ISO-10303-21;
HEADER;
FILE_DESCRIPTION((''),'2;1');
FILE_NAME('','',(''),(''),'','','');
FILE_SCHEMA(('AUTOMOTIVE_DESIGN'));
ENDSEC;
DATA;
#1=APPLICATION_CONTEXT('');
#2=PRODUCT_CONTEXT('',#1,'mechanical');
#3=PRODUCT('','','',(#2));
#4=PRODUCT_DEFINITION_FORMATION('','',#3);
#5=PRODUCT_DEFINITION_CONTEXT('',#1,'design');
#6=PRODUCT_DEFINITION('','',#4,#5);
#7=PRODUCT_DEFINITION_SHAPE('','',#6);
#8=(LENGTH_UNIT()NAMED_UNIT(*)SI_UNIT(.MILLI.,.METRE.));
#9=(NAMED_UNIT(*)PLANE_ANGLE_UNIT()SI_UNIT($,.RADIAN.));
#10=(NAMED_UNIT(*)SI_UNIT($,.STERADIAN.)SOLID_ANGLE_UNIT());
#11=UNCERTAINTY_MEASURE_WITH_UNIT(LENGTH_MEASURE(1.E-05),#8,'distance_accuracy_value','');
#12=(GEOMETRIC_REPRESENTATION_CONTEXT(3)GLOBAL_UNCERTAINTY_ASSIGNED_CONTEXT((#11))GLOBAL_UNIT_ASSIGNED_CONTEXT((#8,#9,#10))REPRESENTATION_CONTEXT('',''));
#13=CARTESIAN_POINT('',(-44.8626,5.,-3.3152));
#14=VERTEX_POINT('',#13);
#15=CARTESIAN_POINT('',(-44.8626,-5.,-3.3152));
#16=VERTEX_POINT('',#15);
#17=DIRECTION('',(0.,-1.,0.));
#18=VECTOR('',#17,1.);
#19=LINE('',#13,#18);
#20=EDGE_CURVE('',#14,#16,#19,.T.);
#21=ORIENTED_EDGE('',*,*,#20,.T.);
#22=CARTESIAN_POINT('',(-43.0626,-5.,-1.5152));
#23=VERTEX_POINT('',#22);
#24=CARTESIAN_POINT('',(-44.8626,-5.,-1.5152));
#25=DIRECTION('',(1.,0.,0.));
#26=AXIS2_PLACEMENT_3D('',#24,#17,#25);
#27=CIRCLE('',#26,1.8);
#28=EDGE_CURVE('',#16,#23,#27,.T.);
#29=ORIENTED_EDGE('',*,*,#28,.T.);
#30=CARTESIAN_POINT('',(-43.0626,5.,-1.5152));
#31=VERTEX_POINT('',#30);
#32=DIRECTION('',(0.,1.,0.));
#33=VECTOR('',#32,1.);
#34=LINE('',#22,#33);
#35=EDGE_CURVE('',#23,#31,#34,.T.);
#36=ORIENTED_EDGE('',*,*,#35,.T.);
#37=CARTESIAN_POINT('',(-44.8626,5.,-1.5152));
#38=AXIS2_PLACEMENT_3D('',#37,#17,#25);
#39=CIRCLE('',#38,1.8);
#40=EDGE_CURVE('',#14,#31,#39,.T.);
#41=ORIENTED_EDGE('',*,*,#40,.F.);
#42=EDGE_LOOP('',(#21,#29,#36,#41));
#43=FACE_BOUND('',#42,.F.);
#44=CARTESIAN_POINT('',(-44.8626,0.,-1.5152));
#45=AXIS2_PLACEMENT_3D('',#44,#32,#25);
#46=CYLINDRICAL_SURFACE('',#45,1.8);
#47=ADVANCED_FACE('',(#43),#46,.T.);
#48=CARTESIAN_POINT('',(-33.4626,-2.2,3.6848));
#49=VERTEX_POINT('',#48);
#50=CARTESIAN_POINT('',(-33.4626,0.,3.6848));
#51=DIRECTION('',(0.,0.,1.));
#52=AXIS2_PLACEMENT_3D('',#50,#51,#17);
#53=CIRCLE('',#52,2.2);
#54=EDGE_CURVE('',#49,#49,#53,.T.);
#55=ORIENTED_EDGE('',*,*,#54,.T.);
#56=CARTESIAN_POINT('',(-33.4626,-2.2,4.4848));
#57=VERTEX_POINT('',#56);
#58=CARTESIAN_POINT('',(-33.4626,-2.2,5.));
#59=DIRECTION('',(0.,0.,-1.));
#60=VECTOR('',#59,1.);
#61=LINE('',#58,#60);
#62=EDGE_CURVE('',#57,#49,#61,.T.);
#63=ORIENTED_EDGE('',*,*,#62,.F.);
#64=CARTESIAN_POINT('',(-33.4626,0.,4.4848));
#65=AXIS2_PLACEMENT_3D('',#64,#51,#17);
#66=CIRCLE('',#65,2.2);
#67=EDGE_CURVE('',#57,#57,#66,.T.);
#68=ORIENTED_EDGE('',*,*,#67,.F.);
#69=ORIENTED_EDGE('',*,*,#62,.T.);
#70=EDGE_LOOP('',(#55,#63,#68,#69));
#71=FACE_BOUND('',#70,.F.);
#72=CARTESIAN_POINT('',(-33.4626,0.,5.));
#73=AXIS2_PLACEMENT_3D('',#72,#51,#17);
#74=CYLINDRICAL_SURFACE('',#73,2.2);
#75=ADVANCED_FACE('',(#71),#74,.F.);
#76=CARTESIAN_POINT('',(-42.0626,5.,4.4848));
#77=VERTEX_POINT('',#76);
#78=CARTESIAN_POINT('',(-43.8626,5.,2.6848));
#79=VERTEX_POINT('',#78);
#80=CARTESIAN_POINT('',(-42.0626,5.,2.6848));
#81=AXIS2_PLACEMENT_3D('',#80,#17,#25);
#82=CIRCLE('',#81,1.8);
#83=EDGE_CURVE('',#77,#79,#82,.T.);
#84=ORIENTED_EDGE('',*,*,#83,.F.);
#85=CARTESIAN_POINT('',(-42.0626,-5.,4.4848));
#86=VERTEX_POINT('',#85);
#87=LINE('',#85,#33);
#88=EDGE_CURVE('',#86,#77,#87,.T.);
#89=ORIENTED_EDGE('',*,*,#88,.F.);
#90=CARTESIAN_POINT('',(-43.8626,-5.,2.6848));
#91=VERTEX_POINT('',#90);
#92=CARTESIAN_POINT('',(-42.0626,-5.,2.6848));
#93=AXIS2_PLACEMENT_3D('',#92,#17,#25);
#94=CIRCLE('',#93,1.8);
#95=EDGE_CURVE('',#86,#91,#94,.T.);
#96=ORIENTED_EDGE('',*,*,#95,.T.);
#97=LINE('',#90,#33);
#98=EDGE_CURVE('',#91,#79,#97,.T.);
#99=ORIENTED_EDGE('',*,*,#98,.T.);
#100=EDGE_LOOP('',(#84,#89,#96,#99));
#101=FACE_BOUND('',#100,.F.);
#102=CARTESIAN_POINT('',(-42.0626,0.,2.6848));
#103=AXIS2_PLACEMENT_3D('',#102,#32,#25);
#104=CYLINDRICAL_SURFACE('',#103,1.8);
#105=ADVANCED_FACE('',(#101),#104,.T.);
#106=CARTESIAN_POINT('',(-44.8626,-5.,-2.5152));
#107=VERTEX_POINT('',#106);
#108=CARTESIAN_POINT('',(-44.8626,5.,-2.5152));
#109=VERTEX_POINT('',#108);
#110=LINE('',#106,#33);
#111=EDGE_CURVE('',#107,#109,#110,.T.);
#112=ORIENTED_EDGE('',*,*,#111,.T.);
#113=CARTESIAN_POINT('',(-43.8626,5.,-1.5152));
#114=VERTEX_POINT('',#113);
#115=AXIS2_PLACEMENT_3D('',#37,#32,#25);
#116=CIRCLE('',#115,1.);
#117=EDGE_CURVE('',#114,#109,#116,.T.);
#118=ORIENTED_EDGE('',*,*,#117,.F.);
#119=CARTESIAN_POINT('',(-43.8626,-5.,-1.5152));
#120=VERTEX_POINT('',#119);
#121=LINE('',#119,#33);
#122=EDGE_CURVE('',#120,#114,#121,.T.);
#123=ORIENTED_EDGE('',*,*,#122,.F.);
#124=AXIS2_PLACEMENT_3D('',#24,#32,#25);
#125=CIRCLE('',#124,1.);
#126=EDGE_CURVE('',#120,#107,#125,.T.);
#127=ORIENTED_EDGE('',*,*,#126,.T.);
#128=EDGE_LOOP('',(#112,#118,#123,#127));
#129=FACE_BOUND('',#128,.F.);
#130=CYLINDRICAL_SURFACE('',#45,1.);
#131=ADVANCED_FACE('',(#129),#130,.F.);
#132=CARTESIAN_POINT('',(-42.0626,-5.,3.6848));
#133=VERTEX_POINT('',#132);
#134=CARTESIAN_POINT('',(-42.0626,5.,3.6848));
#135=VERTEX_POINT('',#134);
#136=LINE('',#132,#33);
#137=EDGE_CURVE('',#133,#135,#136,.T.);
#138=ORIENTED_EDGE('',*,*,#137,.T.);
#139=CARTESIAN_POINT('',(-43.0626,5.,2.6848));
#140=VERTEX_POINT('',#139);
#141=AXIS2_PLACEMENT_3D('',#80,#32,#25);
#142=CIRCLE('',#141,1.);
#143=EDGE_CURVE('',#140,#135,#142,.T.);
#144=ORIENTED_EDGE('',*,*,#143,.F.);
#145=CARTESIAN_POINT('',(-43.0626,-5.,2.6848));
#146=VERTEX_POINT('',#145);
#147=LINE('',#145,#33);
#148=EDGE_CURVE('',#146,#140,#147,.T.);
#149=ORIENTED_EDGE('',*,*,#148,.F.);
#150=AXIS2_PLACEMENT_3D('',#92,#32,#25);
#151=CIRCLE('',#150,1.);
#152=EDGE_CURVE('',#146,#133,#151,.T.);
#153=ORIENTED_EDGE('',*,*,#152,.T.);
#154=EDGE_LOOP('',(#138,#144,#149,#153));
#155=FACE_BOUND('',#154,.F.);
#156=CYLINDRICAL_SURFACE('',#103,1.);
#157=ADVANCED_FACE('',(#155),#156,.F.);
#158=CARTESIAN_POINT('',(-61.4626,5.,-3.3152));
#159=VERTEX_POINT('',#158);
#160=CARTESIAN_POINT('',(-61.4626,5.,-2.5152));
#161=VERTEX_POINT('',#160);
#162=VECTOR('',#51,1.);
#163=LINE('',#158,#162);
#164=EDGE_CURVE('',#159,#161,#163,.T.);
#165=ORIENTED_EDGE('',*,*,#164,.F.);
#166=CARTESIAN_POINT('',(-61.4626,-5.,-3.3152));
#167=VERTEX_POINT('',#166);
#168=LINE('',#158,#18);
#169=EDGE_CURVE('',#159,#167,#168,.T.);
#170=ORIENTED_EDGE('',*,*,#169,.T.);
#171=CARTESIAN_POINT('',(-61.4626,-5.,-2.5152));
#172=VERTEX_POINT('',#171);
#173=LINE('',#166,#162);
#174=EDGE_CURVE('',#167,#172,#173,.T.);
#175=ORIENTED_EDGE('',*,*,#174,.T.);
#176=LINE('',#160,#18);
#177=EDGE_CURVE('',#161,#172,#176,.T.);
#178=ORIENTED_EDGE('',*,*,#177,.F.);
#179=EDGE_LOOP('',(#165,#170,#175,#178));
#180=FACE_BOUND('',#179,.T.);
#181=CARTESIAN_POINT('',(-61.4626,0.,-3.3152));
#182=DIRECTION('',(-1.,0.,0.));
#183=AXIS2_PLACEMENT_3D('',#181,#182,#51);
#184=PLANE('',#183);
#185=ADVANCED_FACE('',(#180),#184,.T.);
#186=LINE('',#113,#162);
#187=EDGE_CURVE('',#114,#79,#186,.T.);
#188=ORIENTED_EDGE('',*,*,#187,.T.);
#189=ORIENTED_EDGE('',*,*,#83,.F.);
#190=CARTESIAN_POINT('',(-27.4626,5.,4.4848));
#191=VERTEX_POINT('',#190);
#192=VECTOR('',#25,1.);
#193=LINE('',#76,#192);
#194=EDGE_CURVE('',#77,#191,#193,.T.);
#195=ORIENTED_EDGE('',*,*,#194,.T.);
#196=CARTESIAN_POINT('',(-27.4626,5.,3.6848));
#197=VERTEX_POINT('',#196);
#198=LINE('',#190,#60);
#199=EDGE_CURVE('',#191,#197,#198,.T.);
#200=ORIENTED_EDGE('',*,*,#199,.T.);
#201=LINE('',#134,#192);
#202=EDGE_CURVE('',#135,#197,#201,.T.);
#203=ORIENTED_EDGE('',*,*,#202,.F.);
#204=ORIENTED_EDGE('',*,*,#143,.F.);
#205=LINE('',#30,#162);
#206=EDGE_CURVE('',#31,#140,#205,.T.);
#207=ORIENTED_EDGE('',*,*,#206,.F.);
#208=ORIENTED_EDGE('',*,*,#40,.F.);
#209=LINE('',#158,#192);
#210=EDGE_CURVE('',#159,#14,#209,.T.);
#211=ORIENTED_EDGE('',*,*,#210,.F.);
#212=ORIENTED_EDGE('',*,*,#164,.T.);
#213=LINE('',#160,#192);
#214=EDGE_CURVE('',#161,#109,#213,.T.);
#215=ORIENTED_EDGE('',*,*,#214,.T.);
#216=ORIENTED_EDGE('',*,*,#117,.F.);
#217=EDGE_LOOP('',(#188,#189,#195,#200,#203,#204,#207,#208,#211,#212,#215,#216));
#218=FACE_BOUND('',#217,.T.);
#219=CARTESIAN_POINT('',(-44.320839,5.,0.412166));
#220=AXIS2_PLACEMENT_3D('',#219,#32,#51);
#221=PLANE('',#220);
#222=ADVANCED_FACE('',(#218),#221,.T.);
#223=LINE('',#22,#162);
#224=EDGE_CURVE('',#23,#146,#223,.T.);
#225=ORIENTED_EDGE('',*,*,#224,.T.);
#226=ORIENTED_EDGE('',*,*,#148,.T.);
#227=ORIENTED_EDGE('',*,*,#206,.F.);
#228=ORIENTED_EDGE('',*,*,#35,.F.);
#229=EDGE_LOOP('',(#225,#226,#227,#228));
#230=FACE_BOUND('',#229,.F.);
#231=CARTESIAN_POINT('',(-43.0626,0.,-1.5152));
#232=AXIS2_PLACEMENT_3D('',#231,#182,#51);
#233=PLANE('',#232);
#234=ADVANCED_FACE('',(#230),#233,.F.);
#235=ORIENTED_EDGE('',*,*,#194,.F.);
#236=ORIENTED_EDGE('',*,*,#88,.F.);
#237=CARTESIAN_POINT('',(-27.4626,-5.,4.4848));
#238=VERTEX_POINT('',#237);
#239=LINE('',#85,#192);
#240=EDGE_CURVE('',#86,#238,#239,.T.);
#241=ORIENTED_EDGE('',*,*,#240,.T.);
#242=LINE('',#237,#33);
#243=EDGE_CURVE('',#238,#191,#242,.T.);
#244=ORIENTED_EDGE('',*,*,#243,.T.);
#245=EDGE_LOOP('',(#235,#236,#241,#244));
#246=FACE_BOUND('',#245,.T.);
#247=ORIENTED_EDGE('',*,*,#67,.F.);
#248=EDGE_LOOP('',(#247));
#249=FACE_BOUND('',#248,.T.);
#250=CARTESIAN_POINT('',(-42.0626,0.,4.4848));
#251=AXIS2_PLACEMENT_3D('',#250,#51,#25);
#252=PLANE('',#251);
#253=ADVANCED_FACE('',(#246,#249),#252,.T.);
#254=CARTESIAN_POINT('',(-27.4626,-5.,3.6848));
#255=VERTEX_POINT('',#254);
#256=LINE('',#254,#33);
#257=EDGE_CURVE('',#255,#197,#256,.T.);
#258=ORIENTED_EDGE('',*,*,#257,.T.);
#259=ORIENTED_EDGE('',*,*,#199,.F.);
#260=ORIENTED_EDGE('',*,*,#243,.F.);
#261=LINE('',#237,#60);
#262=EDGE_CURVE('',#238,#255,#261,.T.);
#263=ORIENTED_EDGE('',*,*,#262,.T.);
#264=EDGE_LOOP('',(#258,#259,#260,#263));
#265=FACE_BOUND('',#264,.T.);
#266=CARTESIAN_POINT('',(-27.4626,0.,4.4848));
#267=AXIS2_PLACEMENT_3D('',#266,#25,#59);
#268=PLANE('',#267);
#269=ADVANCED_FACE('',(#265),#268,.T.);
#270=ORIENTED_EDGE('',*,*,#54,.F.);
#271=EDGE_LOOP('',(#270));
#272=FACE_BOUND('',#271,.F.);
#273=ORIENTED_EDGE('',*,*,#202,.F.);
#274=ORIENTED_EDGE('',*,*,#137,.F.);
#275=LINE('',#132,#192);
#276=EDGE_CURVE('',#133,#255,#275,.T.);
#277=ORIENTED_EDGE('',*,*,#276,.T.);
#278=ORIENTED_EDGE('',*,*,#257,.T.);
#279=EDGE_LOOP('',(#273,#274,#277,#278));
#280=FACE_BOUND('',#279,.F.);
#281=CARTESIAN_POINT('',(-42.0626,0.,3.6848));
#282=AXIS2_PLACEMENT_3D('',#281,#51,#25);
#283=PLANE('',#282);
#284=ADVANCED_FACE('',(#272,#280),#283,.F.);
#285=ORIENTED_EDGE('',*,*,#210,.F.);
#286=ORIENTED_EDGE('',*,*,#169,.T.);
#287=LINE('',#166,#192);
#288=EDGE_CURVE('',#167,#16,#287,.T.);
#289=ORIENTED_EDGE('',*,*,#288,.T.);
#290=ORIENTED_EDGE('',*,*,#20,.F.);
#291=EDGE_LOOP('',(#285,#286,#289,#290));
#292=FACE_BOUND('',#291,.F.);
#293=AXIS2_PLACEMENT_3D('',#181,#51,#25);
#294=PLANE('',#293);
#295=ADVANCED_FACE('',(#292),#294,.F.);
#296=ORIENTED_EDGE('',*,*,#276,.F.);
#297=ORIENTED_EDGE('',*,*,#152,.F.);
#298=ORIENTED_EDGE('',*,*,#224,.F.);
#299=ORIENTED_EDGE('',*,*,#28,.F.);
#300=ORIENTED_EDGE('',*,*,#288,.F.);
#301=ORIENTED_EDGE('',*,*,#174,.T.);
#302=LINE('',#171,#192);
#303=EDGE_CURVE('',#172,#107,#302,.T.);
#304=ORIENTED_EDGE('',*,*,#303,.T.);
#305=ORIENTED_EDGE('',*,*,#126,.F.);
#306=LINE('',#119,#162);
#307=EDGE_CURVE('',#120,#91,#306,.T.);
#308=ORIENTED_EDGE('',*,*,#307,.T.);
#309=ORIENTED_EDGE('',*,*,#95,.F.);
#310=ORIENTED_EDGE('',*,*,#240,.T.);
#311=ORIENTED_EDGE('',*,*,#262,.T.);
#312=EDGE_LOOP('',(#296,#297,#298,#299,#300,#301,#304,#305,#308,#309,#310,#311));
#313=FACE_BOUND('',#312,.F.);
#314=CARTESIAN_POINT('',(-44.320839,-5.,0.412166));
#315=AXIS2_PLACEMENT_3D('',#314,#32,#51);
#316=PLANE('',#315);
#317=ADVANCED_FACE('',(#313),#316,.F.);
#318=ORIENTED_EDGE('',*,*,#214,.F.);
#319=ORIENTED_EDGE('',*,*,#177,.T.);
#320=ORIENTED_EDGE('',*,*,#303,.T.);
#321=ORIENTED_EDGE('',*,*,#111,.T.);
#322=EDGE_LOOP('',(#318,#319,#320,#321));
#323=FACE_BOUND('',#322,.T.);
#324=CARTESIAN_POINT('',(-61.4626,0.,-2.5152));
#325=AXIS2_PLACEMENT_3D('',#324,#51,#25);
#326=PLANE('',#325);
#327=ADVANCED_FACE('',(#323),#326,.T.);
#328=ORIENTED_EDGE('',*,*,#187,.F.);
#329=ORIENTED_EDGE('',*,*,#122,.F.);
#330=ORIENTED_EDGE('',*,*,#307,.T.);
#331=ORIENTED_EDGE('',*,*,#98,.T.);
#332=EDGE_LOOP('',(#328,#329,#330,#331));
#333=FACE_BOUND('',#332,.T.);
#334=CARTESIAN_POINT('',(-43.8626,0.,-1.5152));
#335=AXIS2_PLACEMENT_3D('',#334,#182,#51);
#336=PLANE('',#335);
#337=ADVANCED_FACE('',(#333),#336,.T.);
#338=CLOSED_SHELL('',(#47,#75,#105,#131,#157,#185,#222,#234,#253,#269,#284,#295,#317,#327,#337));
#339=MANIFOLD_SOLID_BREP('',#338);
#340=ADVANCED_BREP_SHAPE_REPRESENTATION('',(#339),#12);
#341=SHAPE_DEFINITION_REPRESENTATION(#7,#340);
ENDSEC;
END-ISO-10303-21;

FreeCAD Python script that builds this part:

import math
import FreeCAD as App
import Part
import Sketcher

V = App.Vector

doc = App.newDocument("Part")
body = doc.addObject("PartDesign::Body", "Body")

sketch1 = body.newObject("Sketcher::SketchObject", "Sketch")
sketch1.AttachmentSupport = (doc.getObject("XZ_Plane"), [""])
sketch1.MapMode = "FlatFace"
sketch1.addGeometry(Part.LineSegment(V(-44.9, -2.5, 0), V(-61.5, -2.5, 0)), False)
sketch1.addGeometry(Part.LineSegment(V(-61.5, -2.5, 0), V(-61.5, -3.3, 0)), False)
sketch1.addGeometry(Part.LineSegment(V(-61.5, -3.3, 0), V(-44.9, -3.3, 0)), False)
sketch1.addGeometry(Part.ArcOfCircle(Part.Circle(V(-44.9, -1.5, 0), V(0, 0, 1), 1.8), math.radians(-90), math.radians(0)), False)
sketch1.addGeometry(Part.LineSegment(V(-43.1, -1.5, 0), V(-43.1, 2.7, 0)), False)
sketch1.addGeometry(Part.ArcOfCircle(Part.Circle(V(-42.1, 2.7, 0), V(0, 0, 1), 1), math.radians(90), math.radians(180)), False)
sketch1.addGeometry(Part.LineSegment(V(-42.1, 3.7, 0), V(-27.5, 3.7, 0)), False)
sketch1.addGeometry(Part.LineSegment(V(-27.5, 3.7, 0), V(-27.5, 4.5, 0)), False)
sketch1.addGeometry(Part.LineSegment(V(-27.5, 4.5, 0), V(-42.1, 4.5, 0)), False)
sketch1.addGeometry(Part.ArcOfCircle(Part.Circle(V(-42.1, 2.7, 0), V(0, 0, 1), 1.8), math.radians(90), math.radians(180)), False)
sketch1.addGeometry(Part.LineSegment(V(-43.9, 2.7, 0), V(-43.9, -1.5, 0)), False)
sketch1.addGeometry(Part.ArcOfCircle(Part.Circle(V(-44.9, -1.5, 0), V(0, 0, 1), 1), math.radians(-90), math.radians(0)), False)
sketch1.addConstraint(Sketcher.Constraint("Coincident", 0, 2, 1, 1))
sketch1.addConstraint(Sketcher.Constraint("Coincident", 1, 2, 2, 1))
sketch1.addConstraint(Sketcher.Constraint("Tangent", 2, 2, 3, 1))
sketch1.addConstraint(Sketcher.Constraint("Tangent", 3, 2, 4, 1))
sketch1.addConstraint(Sketcher.Constraint("Tangent", 4, 2, 5, 2))
sketch1.addConstraint(Sketcher.Constraint("Tangent", 5, 1, 6, 1))
sketch1.addConstraint(Sketcher.Constraint("Coincident", 6, 2, 7, 1))
sketch1.addConstraint(Sketcher.Constraint("Coincident", 7, 2, 8, 1))
sketch1.addConstraint(Sketcher.Constraint("Tangent", 8, 2, 9, 1))
sketch1.addConstraint(Sketcher.Constraint("Tangent", 9, 2, 10, 1))
sketch1.addConstraint(Sketcher.Constraint("Tangent", 10, 2, 11, 2))
sketch1.addConstraint(Sketcher.Constraint("Tangent", 11, 1, 0, 1))
sketch1.addConstraint(Sketcher.Constraint("Horizontal", 0))
sketch1.addConstraint(Sketcher.Constraint("Vertical", 1))
sketch1.addConstraint(Sketcher.Constraint("Horizontal", 2))
sketch1.addConstraint(Sketcher.Constraint("Vertical", 4))
sketch1.addConstraint(Sketcher.Constraint("Horizontal", 6))
sketch1.addConstraint(Sketcher.Constraint("Vertical", 7))
sketch1.addConstraint(Sketcher.Constraint("Horizontal", 8))
sketch1.addConstraint(Sketcher.Constraint("Vertical", 10))
sketch1.addConstraint(Sketcher.Constraint("Coincident", 9, 3, 5, 3))
sketch1.addConstraint(Sketcher.Constraint("Coincident", 11, 3, 3, 3))
sketch1.addConstraint(Sketcher.Constraint("Equal", 3, 9))
sketch1.addConstraint(Sketcher.Constraint("Radius", 5, 1.0))
sketch1.addConstraint(Sketcher.Constraint("Radius", 3, 1.8))
sketch1.addConstraint(Sketcher.Constraint("DistanceX", 0, 2, 0, 1, 16.6))
sketch1.addConstraint(Sketcher.Constraint("DistanceX", 6, 1, 6, 2, 14.6))
sketch1.addConstraint(Sketcher.Constraint("DistanceY", 4, 1, 4, 2, 4.2))
sketch1.addConstraint(Sketcher.Constraint("DistanceX", 0, 2, -1, 1, 61.4626))
sketch1.addConstraint(Sketcher.Constraint("DistanceY", 3, 3, -1, 1, 1.5152))
pad1 = body.newObject("PartDesign::Pad", "Pad")
pad1.Profile = sketch1
pad1.Length = 10
pad1.Midplane = True

sketch2 = body.newObject("Sketcher::SketchObject", "Sketch001")
sketch2.AttachmentSupport = (doc.getObject("XY_Plane"), [""])
sketch2.MapMode = "FlatFace"
sketch2.AttachmentOffset = App.Placement(V(0, 0, 5), App.Rotation())
sketch2.addGeometry(Part.Circle(V(-33.5, 0, 0), V(0, 0, 1), 2.2), False)
sketch2.addConstraint(Sketcher.Constraint("PointOnObject", 0, 3, -1))
sketch2.addConstraint(Sketcher.Constraint("Diameter", 0, 4.4))
sketch2.addConstraint(Sketcher.Constraint("DistanceX", 0, 3, -1, 1, 33.4626))
pocket1 = body.newObject("PartDesign::Pocket", "Pocket")
pocket1.Profile = sketch2
pocket1.Type = "ThroughAll"
pocket1.Midplane = True

doc.recompute()
